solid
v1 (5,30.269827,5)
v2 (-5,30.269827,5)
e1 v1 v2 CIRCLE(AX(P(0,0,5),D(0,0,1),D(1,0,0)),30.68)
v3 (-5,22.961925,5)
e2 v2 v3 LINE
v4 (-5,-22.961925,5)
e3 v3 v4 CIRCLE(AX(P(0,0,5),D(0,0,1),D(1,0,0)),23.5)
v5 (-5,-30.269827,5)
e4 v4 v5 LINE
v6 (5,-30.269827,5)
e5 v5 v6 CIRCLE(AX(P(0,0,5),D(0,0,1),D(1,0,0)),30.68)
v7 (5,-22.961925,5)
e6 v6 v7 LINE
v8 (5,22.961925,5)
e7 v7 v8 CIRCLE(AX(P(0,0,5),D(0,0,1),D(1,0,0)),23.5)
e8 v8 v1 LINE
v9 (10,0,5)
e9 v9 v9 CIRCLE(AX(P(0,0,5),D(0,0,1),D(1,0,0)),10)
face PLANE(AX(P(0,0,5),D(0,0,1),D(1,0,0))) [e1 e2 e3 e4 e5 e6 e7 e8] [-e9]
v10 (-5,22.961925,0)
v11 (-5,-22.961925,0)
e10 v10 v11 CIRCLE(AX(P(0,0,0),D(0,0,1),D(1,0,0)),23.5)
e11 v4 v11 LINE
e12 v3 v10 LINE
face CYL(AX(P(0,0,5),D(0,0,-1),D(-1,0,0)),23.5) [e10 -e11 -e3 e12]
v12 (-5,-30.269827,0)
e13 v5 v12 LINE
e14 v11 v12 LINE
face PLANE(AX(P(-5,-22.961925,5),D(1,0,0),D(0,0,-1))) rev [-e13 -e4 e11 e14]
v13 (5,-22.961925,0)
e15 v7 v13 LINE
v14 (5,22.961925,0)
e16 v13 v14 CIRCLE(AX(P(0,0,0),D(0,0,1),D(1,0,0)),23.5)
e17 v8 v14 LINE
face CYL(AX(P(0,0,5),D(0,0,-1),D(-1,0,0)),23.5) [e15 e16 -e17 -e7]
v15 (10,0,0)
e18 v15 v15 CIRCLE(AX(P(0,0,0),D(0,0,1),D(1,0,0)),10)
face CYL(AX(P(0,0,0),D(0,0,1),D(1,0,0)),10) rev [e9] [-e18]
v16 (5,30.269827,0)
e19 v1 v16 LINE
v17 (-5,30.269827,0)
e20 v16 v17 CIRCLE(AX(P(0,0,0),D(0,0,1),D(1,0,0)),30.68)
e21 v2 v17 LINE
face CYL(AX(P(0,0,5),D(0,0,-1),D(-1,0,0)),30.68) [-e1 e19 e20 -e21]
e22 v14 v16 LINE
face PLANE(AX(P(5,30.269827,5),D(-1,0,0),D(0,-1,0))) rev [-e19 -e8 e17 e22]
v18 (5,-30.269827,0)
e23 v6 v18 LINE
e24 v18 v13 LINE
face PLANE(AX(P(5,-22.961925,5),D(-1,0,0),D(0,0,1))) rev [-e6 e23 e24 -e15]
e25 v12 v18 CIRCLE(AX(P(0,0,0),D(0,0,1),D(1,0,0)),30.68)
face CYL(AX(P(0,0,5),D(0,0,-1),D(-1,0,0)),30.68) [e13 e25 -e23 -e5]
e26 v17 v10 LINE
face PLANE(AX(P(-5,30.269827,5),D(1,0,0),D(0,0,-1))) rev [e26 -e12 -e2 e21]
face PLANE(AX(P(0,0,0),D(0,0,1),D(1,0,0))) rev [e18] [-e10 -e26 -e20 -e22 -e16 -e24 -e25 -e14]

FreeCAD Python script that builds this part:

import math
import FreeCAD as App
import Part
import Sketcher

V = App.Vector
Q = App.Units.Quantity

doc = App.newDocument("Part")
body = doc.addObject("PartDesign::Body", "Body")

# Sketch on XY plane
sketch1 = body.newObject("Sketcher::SketchObject", "Sketch")
sketch1.AttachmentSupport = (doc.getObject("XY_Plane"), [""])
sketch1.MapMode = "FlatFace"
sketch1.addGeometry([
    Part.LineSegment(V(-5, -23, 0), V(-5, -30, 0)),  # 0
    Part.ArcOfCircle(Part.Circle(V(0, 0, 0), V(0, 0, 1), 31), math.radians(-99.38), math.radians(-80.62)),  # 1
    Part.LineSegment(V(5, -30, 0), V(5, -23, 0)),  # 2
    Part.ArcOfCircle(Part.Circle(V(0, 0, 0), V(0, 0, 1), 23), math.radians(-78), math.radians(78)),  # 3
    Part.LineSegment(V(5, 23, 0), V(5, 30, 0)),  # 4
    Part.ArcOfCircle(Part.Circle(V(0, 0, 0), V(0, 0, 1), 31), math.radians(80.62), math.radians(99.38)),  # 5
    Part.LineSegment(V(-5, 30, 0), V(-5, 23, 0)),  # 6
    Part.ArcOfCircle(Part.Circle(V(0, 0, 0), V(0, 0, 1), 23), math.radians(102), math.radians(258)),  # 7
], False)
sketch1.addConstraint([
    Sketcher.Constraint("Coincident", 0, 2, 1, 1),
    Sketcher.Constraint("Coincident", 1, 2, 2, 1),
    Sketcher.Constraint("Coincident", 2, 2, 3, 1),
    Sketcher.Constraint("Coincident", 3, 2, 4, 1),
    Sketcher.Constraint("Coincident", 4, 2, 5, 1),
    Sketcher.Constraint("Coincident", 5, 2, 6, 1),
    Sketcher.Constraint("Coincident", 6, 2, 7, 1),
    Sketcher.Constraint("Coincident", 7, 2, 0, 1),
    Sketcher.Constraint("Vertical", 0),
    Sketcher.Constraint("Vertical", 2),
    Sketcher.Constraint("Vertical", 4),
    Sketcher.Constraint("Vertical", 6),
    Sketcher.Constraint("Coincident", 1, 3, -1, 1),
    Sketcher.Constraint("Coincident", 3, 3, -1, 1),
    Sketcher.Constraint("Coincident", 5, 3, -1, 1),
    Sketcher.Constraint("Coincident", 7, 3, -1, 1),
    Sketcher.Constraint("Equal", 1, 5),
    Sketcher.Constraint("Equal", 3, 7),
    Sketcher.Constraint("Horizontal", 0, 2, 1, 2),
    Sketcher.Constraint("Horizontal", 4, 2, 5, 2),
    Sketcher.Constraint("Vertical", 2, 2, 3, 2),
    Sketcher.Constraint("Radius", 3, Q("23.5 mm")),
    Sketcher.Constraint("Radius", 1, Q("30.68 mm")),
    Sketcher.Constraint("DistanceX", 0, 2, -1, 1, Q("5 mm")),
])
pad1 = body.newObject("PartDesign::Pad", "Pad")
pad1.Profile = sketch1
pad1.Length = 5

# Sketch on XY plane
sketch2 = body.newObject("Sketcher::SketchObject", "Sketch001")
sketch2.AttachmentSupport = (doc.getObject("XY_Plane"), [""])
sketch2.MapMode = "FlatFace"
sketch2.AttachmentOffset = App.Placement(V(0, 0, 5), App.Rotation())
sketch2.addGeometry(Part.Circle(V(0, 0, 0), V(0, 0, 1), 10), False)
sketch2.addConstraint([
    Sketcher.Constraint("Coincident", 0, 3, -1, 1),
    Sketcher.Constraint("Diameter", 0, Q("20 mm")),
])
pocket1 = body.newObject("PartDesign::Pocket", "Pocket")
pocket1.Profile = sketch2
pocket1.Length = 5

doc.recompute()
